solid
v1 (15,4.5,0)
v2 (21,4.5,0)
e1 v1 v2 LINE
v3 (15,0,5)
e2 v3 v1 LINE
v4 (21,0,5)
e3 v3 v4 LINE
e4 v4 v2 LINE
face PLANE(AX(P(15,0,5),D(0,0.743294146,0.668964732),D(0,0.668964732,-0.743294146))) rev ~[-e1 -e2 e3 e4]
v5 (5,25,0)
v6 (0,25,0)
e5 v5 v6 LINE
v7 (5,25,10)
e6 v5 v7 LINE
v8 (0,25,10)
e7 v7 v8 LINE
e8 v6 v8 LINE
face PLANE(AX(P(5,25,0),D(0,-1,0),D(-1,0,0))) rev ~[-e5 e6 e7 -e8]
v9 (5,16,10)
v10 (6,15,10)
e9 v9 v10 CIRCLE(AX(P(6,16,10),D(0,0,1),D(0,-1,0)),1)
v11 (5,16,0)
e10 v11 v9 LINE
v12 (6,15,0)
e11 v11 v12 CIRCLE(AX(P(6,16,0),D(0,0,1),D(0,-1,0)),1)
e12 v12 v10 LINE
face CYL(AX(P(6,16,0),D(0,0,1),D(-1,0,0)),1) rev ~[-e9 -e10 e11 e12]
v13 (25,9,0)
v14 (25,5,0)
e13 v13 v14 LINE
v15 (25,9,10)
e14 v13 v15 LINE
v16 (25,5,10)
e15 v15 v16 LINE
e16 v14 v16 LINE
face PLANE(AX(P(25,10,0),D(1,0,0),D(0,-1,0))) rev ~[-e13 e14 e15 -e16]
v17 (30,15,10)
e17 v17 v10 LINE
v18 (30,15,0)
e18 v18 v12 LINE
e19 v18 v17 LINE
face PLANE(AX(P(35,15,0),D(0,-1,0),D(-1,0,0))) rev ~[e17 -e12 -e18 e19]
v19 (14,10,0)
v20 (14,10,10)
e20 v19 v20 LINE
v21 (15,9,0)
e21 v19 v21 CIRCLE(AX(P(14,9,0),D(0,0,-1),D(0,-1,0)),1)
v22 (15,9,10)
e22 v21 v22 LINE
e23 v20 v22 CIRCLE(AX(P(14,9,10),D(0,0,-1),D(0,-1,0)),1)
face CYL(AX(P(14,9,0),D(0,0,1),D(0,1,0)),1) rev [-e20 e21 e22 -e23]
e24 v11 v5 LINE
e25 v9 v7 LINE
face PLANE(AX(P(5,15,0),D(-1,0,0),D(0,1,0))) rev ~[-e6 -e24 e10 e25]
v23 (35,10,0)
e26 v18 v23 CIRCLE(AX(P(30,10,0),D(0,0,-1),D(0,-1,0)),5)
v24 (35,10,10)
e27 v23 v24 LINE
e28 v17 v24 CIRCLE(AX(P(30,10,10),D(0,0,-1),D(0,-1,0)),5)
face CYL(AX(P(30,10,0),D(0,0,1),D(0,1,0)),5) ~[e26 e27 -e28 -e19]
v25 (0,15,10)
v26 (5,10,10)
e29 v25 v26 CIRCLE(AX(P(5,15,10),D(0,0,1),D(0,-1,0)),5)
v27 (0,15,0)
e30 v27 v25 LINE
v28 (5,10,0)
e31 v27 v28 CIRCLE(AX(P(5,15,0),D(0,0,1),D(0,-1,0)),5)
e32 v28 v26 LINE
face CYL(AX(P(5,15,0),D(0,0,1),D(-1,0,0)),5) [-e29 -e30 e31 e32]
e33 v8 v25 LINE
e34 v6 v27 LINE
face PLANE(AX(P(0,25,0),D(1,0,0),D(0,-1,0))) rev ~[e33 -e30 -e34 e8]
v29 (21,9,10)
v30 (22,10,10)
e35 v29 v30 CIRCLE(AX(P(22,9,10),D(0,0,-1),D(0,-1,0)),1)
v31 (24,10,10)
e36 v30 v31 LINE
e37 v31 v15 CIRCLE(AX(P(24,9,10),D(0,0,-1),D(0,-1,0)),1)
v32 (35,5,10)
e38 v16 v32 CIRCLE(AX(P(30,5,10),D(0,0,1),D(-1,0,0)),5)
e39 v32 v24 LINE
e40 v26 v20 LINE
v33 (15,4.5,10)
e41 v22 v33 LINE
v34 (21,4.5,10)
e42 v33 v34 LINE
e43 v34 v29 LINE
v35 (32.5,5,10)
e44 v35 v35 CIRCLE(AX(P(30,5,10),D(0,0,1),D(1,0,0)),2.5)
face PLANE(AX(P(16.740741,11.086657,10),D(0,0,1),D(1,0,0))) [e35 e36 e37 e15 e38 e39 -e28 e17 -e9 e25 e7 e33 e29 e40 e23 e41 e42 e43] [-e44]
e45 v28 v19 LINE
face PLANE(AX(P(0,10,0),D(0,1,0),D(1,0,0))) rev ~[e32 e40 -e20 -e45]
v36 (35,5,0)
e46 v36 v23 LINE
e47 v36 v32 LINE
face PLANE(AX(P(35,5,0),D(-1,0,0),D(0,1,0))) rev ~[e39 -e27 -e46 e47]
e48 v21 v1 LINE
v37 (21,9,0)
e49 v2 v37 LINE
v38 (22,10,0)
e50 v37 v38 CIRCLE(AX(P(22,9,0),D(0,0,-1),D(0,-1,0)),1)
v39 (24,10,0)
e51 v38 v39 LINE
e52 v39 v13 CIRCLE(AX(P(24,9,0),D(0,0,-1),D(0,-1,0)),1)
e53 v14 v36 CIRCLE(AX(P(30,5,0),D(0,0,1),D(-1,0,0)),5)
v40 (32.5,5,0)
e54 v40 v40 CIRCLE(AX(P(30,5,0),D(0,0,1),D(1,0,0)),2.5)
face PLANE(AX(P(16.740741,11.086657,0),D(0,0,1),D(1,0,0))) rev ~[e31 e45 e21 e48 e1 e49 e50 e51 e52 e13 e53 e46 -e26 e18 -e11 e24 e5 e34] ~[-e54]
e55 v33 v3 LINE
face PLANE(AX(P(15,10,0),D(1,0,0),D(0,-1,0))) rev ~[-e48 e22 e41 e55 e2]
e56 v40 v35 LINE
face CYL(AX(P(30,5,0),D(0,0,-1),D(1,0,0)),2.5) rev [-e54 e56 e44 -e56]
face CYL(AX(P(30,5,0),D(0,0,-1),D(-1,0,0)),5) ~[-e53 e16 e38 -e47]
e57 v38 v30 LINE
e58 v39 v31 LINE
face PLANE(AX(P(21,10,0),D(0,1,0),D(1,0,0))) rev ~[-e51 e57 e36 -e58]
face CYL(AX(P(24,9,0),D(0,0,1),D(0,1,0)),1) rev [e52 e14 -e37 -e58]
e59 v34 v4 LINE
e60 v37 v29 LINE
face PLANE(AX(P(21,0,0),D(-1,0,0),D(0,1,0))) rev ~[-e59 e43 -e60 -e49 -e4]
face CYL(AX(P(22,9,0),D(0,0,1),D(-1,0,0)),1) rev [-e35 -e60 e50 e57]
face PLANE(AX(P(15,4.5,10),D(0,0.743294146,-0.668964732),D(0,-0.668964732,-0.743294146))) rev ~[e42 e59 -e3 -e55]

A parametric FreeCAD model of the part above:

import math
import FreeCAD as App
import Part
import Sketcher
from FreeCAD import Vector
Q = App.Units.Quantity


def edges_at(feature, points):
    """Names of the edges that pass closest to the given points."""
    edges = feature.Shape.Edges
    near = lambda p: min(range(len(edges)), key=lambda i: edges[i].distToShape(Part.Vertex(*p))[0])
    return sorted({f"Edge{near(p) + 1}" for p in points})


def add_polygon(sketch, points):
    """Adds a closed chain of lines whose ends are joined by coincident constraints."""
    first, n = sketch.GeometryCount, len(points)
    for a, b in zip(points, points[1:] + points[:1]):
        sketch.addGeometry(Part.LineSegment(App.Vector(*a, 0), App.Vector(*b, 0)), False)
    for i in range(n):
        sketch.addConstraint(Sketcher.Constraint("Coincident", first + i, 2, first + (i + 1) % n, 1))

doc = App.newDocument("Part")
params = doc.addObject("Spreadsheet::Sheet", "Params")
for row, (alias, value) in enumerate([
    ("sketch1_diameter", "5 mm"),
    ("sketch1_radius", "5 mm"),
    ("sketch1_width", "15 mm"),
    ("sketch1_width2", "6 mm"),
    ("sketch1_width3", "4 mm"),
    ("pad1_length", "10 mm"),
    ("fillet_radius", "5 mm"),
    ("fillet2_radius", "1 mm"),
    ("sketch2_height", "5 mm"),
    ("sketch2_width", "4.5 mm"),
    ("pocket1_length", "6 mm"),
], start=1):
    params.set(f"A{row}", alias)
    params.set(f"B{row}", "=" + value)
    params.setAlias(f"B{row}", alias)

body = doc.addObject("PartDesign::Body", "Body")

sketch1 = body.newObject("Sketcher::SketchObject", "Sketch")
sketch1.AttachmentSupport = (doc.getObject("XY_Plane"), [""])
sketch1.MapMode = "FlatFace"
sketch1.addGeometry([
    Part.LineSegment(Vector(0, 25, 0), Vector(0, 10, 0)),
    Part.LineSegment(Vector(0, 10, 0), Vector(15, 10, 0)),
    Part.LineSegment(Vector(15, 10, 0), Vector(15, 0, 0)),
    Part.LineSegment(Vector(15, 0, 0), Vector(21, 0, 0)),
    Part.LineSegment(Vector(21, 0, 0), Vector(21, 10, 0)),
    Part.LineSegment(Vector(21, 10, 0), Vector(25, 10, 0)),
    Part.LineSegment(Vector(25, 10, 0), Vector(25, 5, 0)),
    Part.ArcOfCircle(Part.Circle(Vector(30, 5, 0), Vector(0, 0, 1), 5), math.radians(180), math.radians(360)),
    Part.LineSegment(Vector(35, 5, 0), Vector(35, 15, 0)),
    Part.LineSegment(Vector(35, 15, 0), Vector(5, 15, 0)),
    Part.LineSegment(Vector(5, 15, 0), Vector(5, 25, 0)),
    Part.LineSegment(Vector(5, 25, 0), Vector(0, 25, 0)),
    Part.Circle(Vector(30, 5, 0), Vector(0, 0, 1), 2.5),
], False)
sketch1.addConstraint([
    Sketcher.Constraint("Coincident", 0, 2, 1, 1),
    Sketcher.Constraint("Coincident", 1, 2, 2, 1),
    Sketcher.Constraint("Coincident", 2, 2, 3, 1),
    Sketcher.Constraint("Coincident", 3, 2, 4, 1),
    Sketcher.Constraint("Coincident", 4, 2, 5, 1),
    Sketcher.Constraint("Coincident", 5, 2, 6, 1),
    Sketcher.Constraint("Tangent", 6, 2, 7, 1),
    Sketcher.Constraint("Tangent", 7, 2, 8, 1),
    Sketcher.Constraint("Coincident", 8, 2, 9, 1),
    Sketcher.Constraint("Coincident", 9, 2, 10, 1),
    Sketcher.Constraint("Coincident", 10, 2, 11, 1),
    Sketcher.Constraint("Coincident", 11, 2, 0, 1),
    Sketcher.Constraint("Vertical", 0),
    Sketcher.Constraint("Horizontal", 1),
    Sketcher.Constraint("Vertical", 2),
    Sketcher.Constraint("Horizontal", 3),
    Sketcher.Constraint("Vertical", 4),
    Sketcher.Constraint("Horizontal", 5),
    Sketcher.Constraint("Vertical", 6),
    Sketcher.Constraint("Vertical", 8),
    Sketcher.Constraint("Horizontal", 9),
    Sketcher.Constraint("Vertical", 10),
    Sketcher.Constraint("Horizontal", 11),
    Sketcher.Constraint("Coincident", 12, 3, 7, 3),
    Sketcher.Constraint("PointOnObject", 0, 2, -2),
    Sketcher.Constraint("PointOnObject", 2, 2, -1),
    Sketcher.Constraint("Horizontal", 1, 2, 4, 2),
    Sketcher.Constraint("Equal", 1, 0),
    Sketcher.Constraint("Equal", 11, 6),
    Sketcher.Constraint("Equal", 4, 8),
    Sketcher.Constraint("Equal", 8, 10),
    Sketcher.Constraint("Diameter", 12, Q("5 mm")),
    Sketcher.Constraint("Radius", 7, Q("5 mm")),
    Sketcher.Constraint("DistanceX", 1, 1, 1, 2, Q("15 mm")),
    Sketcher.Constraint("DistanceX", 3, 1, 3, 2, Q("6 mm")),
    Sketcher.Constraint("DistanceX", 5, 1, 5, 2, Q("4 mm")),
    Sketcher.Constraint("DistanceX", 9, 2, 9, 1, Q("30 mm")),
])
sketch1.setExpression("Constraints[31]", "Params.sketch1_diameter")
sketch1.setExpression("Constraints[32]", "Params.sketch1_radius")
sketch1.setExpression("Constraints[33]", "Params.sketch1_width")
sketch1.setExpression("Constraints[34]", "Params.sketch1_width2")
sketch1.setExpression("Constraints[35]", "Params.sketch1_width3")
pad1 = body.newObject("PartDesign::Pad", "Pad")
pad1.Profile = sketch1
pad1.setExpression("Length", "Params.pad1_length")
doc.recompute()

fillet = body.newObject("PartDesign::Fillet", "Fillet")
fillet.Base = (pad1, edges_at(pad1, [(0, 10, 5), (35, 15, 5)]))
fillet.setExpression("Radius", "Params.fillet_radius")
doc.recompute()

fillet2 = body.newObject("PartDesign::Fillet", "Fillet001")
fillet2.Base = (fillet, edges_at(fillet, [
    (15, 10, 5),
    (5, 15, 5),
    (25, 10, 5),
    (21, 10, 5),
]))
fillet2.setExpression("Radius", "Params.fillet2_radius")

sketch2 = body.newObject("Sketcher::SketchObject", "Sketch001")
sketch2.AttachmentSupport = (doc.getObject("YZ_Plane"), [""])
sketch2.MapMode = "FlatFace"
sketch2.AttachmentOffset = App.Placement(Vector(0, 0, 15), App.Rotation())
add_polygon(sketch2, [(4.5, 10), (0, 5), (0, 10)])
add_polygon(sketch2, [(0, 5), (4.5, 0), (0, 0)])
sketch2.addConstraint([
    Sketcher.Constraint("Vertical", 1),
    Sketcher.Constraint("Horizontal", 2),
    Sketcher.Constraint("Horizontal", 4),
    Sketcher.Constraint("Vertical", 5),
    Sketcher.Constraint("Coincident", 4, 2, -1, 1),
    Sketcher.Constraint("Coincident", 5, 2, 0, 2),
    Sketcher.Constraint("Vertical", 2, 2, 3, 2),
    Sketcher.Constraint("Equal", 1, 5),
    Sketcher.Constraint("DistanceY", 1, 1, 1, 2, Q("5 mm")),
    Sketcher.Constraint("DistanceX", 2, 1, 2, 2, Q("4.5 mm")),
])
sketch2.setExpression("Constraints[14]", "Params.sketch2_height")
sketch2.setExpression("Constraints[15]", "Params.sketch2_width")
pocket1 = body.newObject("PartDesign::Pocket", "Pocket")
pocket1.Profile = sketch2
pocket1.setExpression("Length", "Params.pocket1_length")
pocket1.Reversed = True

doc.recompute()
